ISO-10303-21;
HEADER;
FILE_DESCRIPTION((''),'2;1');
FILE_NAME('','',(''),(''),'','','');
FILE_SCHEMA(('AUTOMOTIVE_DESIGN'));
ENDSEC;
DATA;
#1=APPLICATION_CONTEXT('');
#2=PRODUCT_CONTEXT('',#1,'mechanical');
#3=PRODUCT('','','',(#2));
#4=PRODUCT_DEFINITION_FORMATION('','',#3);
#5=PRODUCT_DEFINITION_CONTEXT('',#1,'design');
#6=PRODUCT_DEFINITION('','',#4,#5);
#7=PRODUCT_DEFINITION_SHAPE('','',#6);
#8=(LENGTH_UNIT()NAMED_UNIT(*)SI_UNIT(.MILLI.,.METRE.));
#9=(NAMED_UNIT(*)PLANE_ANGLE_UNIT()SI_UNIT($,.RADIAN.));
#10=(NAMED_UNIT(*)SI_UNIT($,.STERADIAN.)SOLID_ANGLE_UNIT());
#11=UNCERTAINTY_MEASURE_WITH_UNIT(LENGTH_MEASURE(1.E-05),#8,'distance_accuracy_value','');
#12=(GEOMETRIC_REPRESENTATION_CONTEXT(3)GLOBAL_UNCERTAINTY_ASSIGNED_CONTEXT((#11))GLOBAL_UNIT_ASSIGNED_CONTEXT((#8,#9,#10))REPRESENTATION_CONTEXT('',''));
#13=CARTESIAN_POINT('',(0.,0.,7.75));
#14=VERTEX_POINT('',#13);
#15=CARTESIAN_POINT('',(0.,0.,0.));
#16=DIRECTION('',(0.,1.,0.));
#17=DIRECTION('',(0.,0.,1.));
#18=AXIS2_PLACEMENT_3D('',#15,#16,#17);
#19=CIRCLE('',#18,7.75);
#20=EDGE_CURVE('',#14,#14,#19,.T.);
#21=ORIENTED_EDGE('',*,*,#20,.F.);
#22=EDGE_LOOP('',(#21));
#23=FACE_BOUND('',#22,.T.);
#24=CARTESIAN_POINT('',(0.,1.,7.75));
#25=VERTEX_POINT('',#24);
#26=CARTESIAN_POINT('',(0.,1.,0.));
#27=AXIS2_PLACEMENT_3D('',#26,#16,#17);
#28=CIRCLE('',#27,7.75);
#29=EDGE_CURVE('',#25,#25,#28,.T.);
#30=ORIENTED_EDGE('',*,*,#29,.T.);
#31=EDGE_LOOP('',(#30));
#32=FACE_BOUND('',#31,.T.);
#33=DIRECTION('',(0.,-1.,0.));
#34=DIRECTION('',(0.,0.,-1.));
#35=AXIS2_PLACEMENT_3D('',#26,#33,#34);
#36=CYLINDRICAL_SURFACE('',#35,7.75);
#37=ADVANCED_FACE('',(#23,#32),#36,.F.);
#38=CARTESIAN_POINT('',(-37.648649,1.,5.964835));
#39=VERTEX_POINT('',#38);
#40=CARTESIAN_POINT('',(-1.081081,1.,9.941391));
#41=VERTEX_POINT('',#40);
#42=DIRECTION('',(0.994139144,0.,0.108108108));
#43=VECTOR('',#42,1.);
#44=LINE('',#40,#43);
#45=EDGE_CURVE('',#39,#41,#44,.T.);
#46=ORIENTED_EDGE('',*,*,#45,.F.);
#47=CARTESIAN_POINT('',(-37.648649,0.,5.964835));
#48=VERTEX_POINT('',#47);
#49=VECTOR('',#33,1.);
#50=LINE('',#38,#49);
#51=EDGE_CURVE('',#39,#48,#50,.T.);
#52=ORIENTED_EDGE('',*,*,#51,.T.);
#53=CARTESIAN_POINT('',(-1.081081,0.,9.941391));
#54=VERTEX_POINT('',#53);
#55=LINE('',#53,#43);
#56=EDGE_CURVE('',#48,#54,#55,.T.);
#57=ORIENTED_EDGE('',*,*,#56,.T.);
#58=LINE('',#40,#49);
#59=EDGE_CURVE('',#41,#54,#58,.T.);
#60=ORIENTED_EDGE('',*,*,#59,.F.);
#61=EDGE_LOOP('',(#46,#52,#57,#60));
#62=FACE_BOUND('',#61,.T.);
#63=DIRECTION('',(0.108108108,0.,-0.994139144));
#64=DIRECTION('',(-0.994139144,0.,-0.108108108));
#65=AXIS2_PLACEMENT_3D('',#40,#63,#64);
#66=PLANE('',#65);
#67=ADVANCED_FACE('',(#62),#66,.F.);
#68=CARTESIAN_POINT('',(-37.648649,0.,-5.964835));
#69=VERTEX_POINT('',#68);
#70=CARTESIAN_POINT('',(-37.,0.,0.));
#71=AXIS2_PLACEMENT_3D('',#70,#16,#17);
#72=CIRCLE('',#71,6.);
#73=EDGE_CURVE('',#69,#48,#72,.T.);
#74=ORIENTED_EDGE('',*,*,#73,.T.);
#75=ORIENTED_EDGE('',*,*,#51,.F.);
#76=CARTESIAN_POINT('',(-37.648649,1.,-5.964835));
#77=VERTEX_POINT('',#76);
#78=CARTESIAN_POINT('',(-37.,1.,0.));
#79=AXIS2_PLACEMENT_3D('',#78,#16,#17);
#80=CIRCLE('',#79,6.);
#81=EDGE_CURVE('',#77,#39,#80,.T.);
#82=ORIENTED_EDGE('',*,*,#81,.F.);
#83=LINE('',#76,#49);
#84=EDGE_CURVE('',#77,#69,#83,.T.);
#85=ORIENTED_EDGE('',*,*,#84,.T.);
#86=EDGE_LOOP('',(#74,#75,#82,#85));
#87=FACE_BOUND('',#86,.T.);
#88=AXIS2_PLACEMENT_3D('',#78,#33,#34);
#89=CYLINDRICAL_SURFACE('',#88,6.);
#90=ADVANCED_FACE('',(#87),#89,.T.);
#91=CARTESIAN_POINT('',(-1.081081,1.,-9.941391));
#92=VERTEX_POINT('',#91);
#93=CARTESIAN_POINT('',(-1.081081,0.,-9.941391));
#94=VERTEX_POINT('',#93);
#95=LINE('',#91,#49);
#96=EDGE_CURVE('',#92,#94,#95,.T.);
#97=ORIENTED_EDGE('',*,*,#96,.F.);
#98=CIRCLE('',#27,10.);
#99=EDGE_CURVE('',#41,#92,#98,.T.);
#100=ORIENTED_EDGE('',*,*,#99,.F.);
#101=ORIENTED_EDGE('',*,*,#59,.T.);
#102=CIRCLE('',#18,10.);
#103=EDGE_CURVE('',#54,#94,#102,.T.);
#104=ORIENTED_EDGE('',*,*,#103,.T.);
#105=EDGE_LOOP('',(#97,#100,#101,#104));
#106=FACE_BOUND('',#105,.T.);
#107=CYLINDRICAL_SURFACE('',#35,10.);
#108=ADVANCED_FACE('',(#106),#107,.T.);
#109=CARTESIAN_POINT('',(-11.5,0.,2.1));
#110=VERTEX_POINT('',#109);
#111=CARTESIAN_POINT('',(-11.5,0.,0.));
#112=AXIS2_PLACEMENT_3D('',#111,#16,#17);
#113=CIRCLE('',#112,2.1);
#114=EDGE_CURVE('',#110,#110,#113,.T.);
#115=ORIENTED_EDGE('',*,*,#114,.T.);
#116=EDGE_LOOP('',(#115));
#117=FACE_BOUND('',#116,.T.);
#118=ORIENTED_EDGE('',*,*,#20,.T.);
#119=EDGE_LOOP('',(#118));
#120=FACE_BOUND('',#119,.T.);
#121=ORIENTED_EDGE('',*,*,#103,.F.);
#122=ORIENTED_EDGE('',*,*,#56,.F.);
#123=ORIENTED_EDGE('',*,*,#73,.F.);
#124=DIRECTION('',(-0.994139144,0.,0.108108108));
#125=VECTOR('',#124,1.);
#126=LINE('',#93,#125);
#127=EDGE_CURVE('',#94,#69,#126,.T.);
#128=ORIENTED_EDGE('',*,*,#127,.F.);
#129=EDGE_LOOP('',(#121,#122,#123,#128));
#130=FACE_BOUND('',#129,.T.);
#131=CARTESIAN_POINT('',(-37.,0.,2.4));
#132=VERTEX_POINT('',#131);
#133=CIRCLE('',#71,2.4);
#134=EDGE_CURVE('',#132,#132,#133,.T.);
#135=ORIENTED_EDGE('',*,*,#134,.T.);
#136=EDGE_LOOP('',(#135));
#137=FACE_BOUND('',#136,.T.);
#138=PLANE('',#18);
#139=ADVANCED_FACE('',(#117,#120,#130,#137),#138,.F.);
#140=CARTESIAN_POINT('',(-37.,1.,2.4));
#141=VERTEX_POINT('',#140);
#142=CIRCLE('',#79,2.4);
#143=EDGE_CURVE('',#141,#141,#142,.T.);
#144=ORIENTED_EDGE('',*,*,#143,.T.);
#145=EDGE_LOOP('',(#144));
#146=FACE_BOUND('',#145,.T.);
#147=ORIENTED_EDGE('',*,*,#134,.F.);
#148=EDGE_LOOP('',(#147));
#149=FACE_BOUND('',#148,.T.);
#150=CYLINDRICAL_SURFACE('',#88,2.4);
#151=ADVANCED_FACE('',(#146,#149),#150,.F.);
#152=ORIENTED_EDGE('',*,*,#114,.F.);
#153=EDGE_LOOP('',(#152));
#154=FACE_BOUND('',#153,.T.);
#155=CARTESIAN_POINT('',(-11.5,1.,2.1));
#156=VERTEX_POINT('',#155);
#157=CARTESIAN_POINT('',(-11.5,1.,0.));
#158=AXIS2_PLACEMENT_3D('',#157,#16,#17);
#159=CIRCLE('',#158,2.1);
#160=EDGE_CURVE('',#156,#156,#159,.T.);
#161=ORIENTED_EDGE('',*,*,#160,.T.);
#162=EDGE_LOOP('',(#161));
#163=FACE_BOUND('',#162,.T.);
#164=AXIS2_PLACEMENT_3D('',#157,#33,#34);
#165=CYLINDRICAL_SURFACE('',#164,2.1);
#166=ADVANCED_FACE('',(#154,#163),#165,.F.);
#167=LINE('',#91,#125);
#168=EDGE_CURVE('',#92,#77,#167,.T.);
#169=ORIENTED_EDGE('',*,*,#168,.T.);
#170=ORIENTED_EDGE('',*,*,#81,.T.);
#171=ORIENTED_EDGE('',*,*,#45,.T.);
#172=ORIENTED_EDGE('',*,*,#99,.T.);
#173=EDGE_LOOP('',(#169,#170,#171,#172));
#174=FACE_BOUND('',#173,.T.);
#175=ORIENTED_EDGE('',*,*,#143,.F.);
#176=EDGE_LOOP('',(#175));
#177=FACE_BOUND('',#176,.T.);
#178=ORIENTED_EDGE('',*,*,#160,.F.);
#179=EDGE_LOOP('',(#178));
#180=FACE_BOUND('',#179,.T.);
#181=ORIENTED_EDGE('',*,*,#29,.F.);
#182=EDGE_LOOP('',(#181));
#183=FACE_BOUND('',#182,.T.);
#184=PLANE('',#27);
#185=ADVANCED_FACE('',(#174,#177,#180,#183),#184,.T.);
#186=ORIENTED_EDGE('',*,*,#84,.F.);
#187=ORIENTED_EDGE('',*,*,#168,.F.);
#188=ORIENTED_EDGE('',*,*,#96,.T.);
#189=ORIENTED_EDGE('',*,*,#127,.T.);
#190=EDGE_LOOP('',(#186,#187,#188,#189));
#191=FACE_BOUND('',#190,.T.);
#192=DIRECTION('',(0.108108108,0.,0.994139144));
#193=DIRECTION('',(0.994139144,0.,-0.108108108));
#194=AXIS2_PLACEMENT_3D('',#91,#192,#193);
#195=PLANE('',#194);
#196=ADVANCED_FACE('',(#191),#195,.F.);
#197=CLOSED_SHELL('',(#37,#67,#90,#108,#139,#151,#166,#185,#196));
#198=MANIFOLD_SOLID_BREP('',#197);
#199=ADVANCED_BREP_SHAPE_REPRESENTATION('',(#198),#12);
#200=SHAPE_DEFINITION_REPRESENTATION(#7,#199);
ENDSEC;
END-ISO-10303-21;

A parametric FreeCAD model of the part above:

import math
import FreeCAD as App
import Part
import Sketcher

doc = App.newDocument("Part")
params = doc.addObject("Spreadsheet::Sheet", "Params")
for row, (alias, value) in enumerate([
    ("sketch1_radius", "6 mm"),
    ("sketch1_radius2", "10 mm"),
    ("sketch1_diameter", "4.8 mm"),
    ("sketch1_diameter2", "4.2 mm"),
    ("sketch1_diameter3", "15.5 mm"),
    ("pad1_length", "1 mm"),
], start=1):
    params.set(f"A{row}", alias)
    params.set(f"B{row}", "=" + value)
    params.setAlias(f"B{row}", alias)

body = doc.addObject("PartDesign::Body", "Body")

# Sketch on XZ plane
sketch1 = doc.addObject("Sketcher::SketchObject", "Sketch")
body.addObject(sketch1)
sketch1.AttachmentSupport = (doc.XZ_Plane, [""])
sketch1.MapMode = "FlatFace"
sketch1.addGeometry(Part.LineSegment(App.Vector(-1.1, -9.9, 0), App.Vector(-37.6, -6, 0)), False)
sketch1.addGeometry(Part.ArcOfCircle(Part.Circle(App.Vector(-37, 0, 0), App.Vector(0, 0, 1), 6), math.radians(96), math.radians(264)), False)
sketch1.addGeometry(Part.LineSegment(App.Vector(-37.6, 6, 0), App.Vector(-1.1, 9.9, 0)), False)
sketch1.addGeometry(Part.ArcOfCircle(Part.Circle(App.Vector(0, 0, 0), App.Vector(0, 0, 1), 10), math.radians(-96), math.radians(96)), False)
sketch1.addGeometry(Part.Circle(App.Vector(-37, 0, 0), App.Vector(0, 0, 1), 2.4), False)
sketch1.addGeometry(Part.Circle(App.Vector(-11.5, 0, 0), App.Vector(0, 0, 1), 2.1), False)
sketch1.addGeometry(Part.Circle(App.Vector(0, 0, 0), App.Vector(0, 0, 1), 7.8), False)
sketch1.addConstraint(Sketcher.Constraint("Tangent", 0, 2, 1, 2))
sketch1.addConstraint(Sketcher.Constraint("Tangent", 1, 1, 2, 1))
sketch1.addConstraint(Sketcher.Constraint("Tangent", 2, 2, 3, 2))
sketch1.addConstraint(Sketcher.Constraint("Tangent", 3, 1, 0, 1))
sketch1.addConstraint(Sketcher.Constraint("Coincident", 3, 3, -1, 1))
sketch1.addConstraint(Sketcher.Constraint("Coincident", 6, 3, -1, 1))
sketch1.addConstraint(Sketcher.Constraint("Coincident", 4, 3, 1, 3))
sketch1.addConstraint(Sketcher.Constraint("PointOnObject", 1, 3, -1))
sketch1.addConstraint(Sketcher.Constraint("PointOnObject", 5, 3, -1))
sketch1.addConstraint(Sketcher.Constraint("Radius", 1, 6.0))
sketch1.addConstraint(Sketcher.Constraint("Radius", 3, 10.0))
sketch1.addConstraint(Sketcher.Constraint("Diameter", 4, 4.8))
sketch1.addConstraint(Sketcher.Constraint("Diameter", 5, 4.2))
sketch1.addConstraint(Sketcher.Constraint("Diameter", 6, 15.5))
sketch1.addConstraint(Sketcher.Constraint("DistanceX", 1, 3, -1, 1, 37.0))
sketch1.addConstraint(Sketcher.Constraint("DistanceX", 5, 3, -1, 1, 11.5))
sketch1.setExpression("Constraints[9]", "Params.sketch1_radius")
sketch1.setExpression("Constraints[10]", "Params.sketch1_radius2")
sketch1.setExpression("Constraints[11]", "Params.sketch1_diameter")
sketch1.setExpression("Constraints[12]", "Params.sketch1_diameter2")
sketch1.setExpression("Constraints[13]", "Params.sketch1_diameter3")
pad1 = doc.addObject("PartDesign::Pad", "Pad")
body.addObject(pad1)
pad1.Profile = sketch1
pad1.setExpression("Length", "Params.pad1_length")
pad1.Reversed = True

doc.recompute()
